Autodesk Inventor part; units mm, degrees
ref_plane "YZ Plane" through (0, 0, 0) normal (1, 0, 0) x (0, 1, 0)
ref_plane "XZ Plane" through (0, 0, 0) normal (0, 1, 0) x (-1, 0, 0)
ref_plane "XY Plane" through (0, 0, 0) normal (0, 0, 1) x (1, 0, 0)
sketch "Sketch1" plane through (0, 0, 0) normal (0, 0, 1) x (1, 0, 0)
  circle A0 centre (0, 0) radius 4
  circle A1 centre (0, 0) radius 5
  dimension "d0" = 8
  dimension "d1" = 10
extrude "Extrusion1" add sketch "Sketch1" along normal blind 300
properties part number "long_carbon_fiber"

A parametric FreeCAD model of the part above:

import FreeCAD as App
import Part
import Sketcher
Q = App.Units.Quantity

doc = App.newDocument("Part")
params = doc.addObject("Spreadsheet::Sheet", "Params")
for row, (alias, value) in enumerate([
    ("sketch1_diameter", "10 mm"),
    ("sketch1_diameter2", "8 mm"),
    ("pad1_length", "300 mm"),
], start=1):
    params.set(f"A{row}", alias)
    params.set(f"B{row}", "=" + value)
    params.setAlias(f"B{row}", alias)

body = doc.addObject("PartDesign::Body", "Body")

# Sketch on XY plane
sketch1 = body.newObject("Sketcher::SketchObject", "Sketch")
sketch1.AttachmentSupport = (doc.getObject("XY_Plane"), [""])
sketch1.MapMode = "FlatFace"
sketch1.addGeometry(Part.Circle(App.Vector(0, 0, 0), App.Vector(0, 0, 1), 5), False)
sketch1.addGeometry(Part.Circle(App.Vector(0, 0, 0), App.Vector(0, 0, 1), 4), False)
sketch1.addConstraint(Sketcher.Constraint("Coincident", 0, 3, -1, 1))
sketch1.addConstraint(Sketcher.Constraint("Coincident", 1, 3, -1, 1))
sketch1.addConstraint(Sketcher.Constraint("Diameter", 0, Q("10 mm")))
sketch1.addConstraint(Sketcher.Constraint("Diameter", 1, Q("8 mm")))
sketch1.setExpression("Constraints[2]", "Params.sketch1_diameter")
sketch1.setExpression("Constraints[3]", "Params.sketch1_diameter2")
pad1 = body.newObject("PartDesign::Pad", "Pad")
pad1.Profile = sketch1
pad1.setExpression("Length", "Params.pad1_length")

doc.recompute()
